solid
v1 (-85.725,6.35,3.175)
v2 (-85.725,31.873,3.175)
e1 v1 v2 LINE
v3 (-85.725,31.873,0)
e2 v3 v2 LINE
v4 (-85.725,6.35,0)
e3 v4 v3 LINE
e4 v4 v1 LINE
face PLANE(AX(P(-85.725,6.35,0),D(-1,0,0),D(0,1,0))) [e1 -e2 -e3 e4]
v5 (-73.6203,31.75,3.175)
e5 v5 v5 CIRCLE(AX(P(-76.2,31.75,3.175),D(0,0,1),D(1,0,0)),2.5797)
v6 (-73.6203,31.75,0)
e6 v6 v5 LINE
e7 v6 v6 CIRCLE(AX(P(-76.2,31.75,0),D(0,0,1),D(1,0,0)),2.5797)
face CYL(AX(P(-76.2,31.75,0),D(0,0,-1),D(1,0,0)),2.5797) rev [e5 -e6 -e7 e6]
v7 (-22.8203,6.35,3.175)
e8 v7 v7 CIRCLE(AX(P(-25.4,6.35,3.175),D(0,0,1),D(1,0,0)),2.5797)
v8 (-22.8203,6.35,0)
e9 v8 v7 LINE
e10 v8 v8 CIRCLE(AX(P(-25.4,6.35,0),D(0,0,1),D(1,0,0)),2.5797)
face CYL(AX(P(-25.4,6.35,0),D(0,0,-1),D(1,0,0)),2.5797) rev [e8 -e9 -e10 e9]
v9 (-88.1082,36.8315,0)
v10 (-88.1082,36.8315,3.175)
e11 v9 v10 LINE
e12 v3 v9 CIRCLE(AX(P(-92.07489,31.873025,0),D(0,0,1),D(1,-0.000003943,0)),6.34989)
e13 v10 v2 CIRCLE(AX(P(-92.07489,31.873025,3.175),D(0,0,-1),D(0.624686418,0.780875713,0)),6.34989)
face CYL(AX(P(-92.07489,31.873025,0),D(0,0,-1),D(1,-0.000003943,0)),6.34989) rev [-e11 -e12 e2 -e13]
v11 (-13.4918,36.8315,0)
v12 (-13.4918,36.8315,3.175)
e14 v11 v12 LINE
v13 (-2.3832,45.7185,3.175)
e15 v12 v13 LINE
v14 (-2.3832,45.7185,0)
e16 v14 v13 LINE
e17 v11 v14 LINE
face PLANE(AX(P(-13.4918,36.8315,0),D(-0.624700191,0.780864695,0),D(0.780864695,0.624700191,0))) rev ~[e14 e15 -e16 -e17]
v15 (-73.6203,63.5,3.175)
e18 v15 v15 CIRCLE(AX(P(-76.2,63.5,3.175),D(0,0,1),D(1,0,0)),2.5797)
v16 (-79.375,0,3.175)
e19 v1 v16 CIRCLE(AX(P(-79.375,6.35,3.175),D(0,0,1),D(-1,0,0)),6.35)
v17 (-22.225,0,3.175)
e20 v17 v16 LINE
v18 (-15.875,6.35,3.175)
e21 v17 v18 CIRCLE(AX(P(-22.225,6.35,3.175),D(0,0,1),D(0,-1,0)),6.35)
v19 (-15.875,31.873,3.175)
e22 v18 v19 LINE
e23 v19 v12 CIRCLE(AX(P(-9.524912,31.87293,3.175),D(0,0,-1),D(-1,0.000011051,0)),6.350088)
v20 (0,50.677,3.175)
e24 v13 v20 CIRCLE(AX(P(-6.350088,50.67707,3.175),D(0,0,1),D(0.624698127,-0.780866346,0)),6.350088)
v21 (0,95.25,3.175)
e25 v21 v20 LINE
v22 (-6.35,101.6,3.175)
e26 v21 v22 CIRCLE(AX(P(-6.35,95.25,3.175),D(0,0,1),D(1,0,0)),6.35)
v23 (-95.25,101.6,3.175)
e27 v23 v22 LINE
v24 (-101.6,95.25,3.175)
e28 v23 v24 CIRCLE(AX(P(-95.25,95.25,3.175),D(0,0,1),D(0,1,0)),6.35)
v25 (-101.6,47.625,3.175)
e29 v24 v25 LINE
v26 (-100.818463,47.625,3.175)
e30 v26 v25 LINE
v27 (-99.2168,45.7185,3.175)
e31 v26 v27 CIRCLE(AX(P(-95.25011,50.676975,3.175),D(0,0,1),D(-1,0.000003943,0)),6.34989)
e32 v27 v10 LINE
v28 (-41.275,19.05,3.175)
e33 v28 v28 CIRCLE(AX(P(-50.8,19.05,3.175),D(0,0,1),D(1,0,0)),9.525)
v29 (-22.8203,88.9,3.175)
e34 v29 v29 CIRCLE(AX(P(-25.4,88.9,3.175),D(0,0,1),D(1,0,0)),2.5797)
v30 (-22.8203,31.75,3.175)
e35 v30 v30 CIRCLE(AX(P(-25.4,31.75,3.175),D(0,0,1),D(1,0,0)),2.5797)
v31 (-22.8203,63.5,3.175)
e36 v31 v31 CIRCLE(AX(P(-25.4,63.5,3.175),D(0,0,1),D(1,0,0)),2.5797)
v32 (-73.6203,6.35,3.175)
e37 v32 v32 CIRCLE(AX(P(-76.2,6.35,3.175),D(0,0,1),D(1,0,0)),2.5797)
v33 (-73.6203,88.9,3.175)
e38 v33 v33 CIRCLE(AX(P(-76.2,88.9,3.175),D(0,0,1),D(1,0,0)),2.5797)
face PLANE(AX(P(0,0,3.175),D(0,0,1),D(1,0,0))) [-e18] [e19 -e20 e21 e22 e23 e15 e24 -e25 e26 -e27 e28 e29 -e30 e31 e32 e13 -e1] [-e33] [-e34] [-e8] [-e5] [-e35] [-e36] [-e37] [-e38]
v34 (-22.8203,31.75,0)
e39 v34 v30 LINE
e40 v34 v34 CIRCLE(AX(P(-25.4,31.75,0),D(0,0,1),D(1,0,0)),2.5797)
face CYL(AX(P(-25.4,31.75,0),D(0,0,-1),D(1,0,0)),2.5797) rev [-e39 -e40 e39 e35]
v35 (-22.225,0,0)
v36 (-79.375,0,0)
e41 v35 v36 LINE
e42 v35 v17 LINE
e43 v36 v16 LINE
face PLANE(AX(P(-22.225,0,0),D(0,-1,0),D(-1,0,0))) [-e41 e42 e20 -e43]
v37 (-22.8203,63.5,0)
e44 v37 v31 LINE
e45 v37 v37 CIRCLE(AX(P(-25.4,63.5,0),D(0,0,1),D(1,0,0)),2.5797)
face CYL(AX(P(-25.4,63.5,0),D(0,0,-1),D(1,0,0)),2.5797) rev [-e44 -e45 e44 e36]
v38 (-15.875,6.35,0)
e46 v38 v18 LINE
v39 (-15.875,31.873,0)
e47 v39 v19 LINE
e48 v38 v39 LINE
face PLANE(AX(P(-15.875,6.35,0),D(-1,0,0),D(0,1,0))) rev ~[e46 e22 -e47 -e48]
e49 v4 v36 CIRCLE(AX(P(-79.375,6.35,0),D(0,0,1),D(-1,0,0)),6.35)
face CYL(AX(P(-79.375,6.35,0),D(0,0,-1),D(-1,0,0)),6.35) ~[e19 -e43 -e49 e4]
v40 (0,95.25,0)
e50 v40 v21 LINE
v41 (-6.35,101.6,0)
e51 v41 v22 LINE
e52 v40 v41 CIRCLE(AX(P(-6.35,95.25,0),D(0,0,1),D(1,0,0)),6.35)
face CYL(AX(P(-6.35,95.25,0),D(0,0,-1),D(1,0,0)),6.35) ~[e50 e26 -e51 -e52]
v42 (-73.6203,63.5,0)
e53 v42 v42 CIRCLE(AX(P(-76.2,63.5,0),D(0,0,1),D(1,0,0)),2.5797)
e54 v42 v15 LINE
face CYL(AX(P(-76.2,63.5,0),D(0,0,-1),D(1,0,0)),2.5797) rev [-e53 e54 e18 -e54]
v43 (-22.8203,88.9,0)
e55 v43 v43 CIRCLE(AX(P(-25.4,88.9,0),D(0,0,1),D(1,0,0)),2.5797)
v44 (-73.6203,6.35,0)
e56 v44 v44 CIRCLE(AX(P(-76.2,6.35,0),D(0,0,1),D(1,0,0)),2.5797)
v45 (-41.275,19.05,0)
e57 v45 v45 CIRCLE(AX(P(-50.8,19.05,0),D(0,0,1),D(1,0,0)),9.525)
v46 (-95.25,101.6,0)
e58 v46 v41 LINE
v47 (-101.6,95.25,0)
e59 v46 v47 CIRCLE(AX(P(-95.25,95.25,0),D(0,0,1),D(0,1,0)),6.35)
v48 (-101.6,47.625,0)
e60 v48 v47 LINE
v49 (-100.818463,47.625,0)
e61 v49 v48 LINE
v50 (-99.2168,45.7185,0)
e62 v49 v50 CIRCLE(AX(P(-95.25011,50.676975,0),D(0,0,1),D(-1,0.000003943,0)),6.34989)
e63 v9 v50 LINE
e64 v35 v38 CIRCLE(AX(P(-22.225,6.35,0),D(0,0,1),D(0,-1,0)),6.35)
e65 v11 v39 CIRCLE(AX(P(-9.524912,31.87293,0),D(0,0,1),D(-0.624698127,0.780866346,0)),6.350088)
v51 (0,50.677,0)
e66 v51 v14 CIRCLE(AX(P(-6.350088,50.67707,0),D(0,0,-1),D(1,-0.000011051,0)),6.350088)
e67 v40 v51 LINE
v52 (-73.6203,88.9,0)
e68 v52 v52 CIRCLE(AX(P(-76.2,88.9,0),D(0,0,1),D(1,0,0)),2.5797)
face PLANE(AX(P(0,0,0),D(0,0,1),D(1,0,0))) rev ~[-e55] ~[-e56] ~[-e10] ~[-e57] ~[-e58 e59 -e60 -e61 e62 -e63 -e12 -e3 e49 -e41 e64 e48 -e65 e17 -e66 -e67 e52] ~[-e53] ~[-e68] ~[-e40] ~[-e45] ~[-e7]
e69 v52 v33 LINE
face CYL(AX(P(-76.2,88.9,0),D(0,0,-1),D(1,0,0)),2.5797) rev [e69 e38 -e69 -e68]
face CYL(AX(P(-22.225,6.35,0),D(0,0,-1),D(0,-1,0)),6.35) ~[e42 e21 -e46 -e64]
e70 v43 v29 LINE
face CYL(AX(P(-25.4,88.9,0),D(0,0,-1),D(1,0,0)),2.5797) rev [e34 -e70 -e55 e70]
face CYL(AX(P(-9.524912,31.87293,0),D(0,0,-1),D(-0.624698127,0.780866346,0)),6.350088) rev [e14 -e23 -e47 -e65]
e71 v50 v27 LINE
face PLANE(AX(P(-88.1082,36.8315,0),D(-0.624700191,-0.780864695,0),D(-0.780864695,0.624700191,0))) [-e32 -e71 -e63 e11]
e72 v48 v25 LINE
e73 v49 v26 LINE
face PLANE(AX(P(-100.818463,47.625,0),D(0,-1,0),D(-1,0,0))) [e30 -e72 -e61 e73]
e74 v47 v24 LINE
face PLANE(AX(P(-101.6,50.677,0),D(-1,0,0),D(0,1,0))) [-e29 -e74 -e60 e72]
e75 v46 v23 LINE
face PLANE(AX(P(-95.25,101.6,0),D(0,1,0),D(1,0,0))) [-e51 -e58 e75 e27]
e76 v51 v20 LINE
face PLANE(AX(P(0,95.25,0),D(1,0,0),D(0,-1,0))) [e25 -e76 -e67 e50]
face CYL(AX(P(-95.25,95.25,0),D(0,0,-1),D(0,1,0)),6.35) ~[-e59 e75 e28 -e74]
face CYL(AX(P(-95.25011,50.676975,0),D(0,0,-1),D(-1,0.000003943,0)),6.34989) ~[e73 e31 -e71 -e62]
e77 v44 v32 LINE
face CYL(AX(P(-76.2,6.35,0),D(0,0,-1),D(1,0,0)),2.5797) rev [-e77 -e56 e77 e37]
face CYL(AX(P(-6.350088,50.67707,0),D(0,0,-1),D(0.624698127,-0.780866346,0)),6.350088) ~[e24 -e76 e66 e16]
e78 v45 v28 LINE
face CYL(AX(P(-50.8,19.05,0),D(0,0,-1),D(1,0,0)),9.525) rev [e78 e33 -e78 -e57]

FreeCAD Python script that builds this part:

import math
import FreeCAD as App
import Part
import Sketcher
from FreeCAD import Vector
Q = App.Units.Quantity

doc = App.newDocument("Part")
body = doc.addObject("PartDesign::Body", "Body")

# Sketch on XY plane
sketch1 = doc.addObject("Sketcher::SketchObject", "Sketch")
body.addObject(sketch1)
sketch1.AttachmentSupport = (doc.XY_Plane, [""])
sketch1.MapMode = "FlatFace"
sketch1.addGeometry([
    Part.LineSegment(Vector(-79.4, 0, 0), Vector(-22.2, 0, 0)),  # 0
    Part.ArcOfCircle(Part.Circle(Vector(-22.2, 6.3, 0), Vector(0, 0, 1), 6.3), math.radians(-90), math.radians(0)),  # 1
    Part.LineSegment(Vector(-15.9, 6.3, 0), Vector(-15.9, 31.9, 0)),  # 2
    Part.ArcOfCircle(Part.Circle(Vector(-9.5, 31.9, 0), Vector(0, 0, 1), 6.3), math.radians(129), math.radians(180)),  # 3
    Part.LineSegment(Vector(-13.5, 36.8, 0), Vector(-2.4, 45.7, 0)),  # 4
    Part.ArcOfCircle(Part.Circle(Vector(-6.3, 50.7, 0), Vector(0, 0, 1), 6.3), math.radians(-51), math.radians(0)),  # 5
    Part.LineSegment(Vector(0, 50.7, 0), Vector(0, 95.2, 0)),  # 6
    Part.ArcOfCircle(Part.Circle(Vector(-6.3, 95.2, 0), Vector(0, 0, 1), 6.3), math.radians(0), math.radians(90)),  # 7
    Part.LineSegment(Vector(-6.3, 101.6, 0), Vector(-95.2, 101.6, 0)),  # 8
    Part.ArcOfCircle(Part.Circle(Vector(-95.2, 95.2, 0), Vector(0, 0, 1), 6.3), math.radians(90), math.radians(180)),  # 9
    Part.LineSegment(Vector(-101.6, 95.2, 0), Vector(-101.6, 47.6, 0)),  # 10
    Part.LineSegment(Vector(-101.6, 47.6, 0), Vector(-100.8, 47.6, 0)),  # 11
    Part.ArcOfCircle(Part.Circle(Vector(-95.2, 50.7, 0), Vector(0, 0, 1), 6.3), math.radians(-151), math.radians(-129)),  # 12
    Part.LineSegment(Vector(-99.2, 45.7, 0), Vector(-88.1, 36.8, 0)),  # 13
    Part.ArcOfCircle(Part.Circle(Vector(-92.1, 31.9, 0), Vector(0, 0, 1), 6.4), math.radians(0), math.radians(51)),  # 14
    Part.LineSegment(Vector(-85.7, 31.9, 0), Vector(-85.7, 6.3, 0)),  # 15
    Part.ArcOfCircle(Part.Circle(Vector(-79.4, 6.3, 0), Vector(0, 0, 1), 6.3), math.radians(180), math.radians(270)),  # 16
    Part.Circle(Vector(-76.2, 6.3, 0), Vector(0, 0, 1), 2.6),  # 17
    Part.Circle(Vector(-50.8, 19.1, 0), Vector(0, 0, 1), 9.5),  # 18
    Part.Circle(Vector(-76.2, 31.8, 0), Vector(0, 0, 1), 2.6),  # 19
    Part.Circle(Vector(-25.4, 6.3, 0), Vector(0, 0, 1), 2.6),  # 20
    Part.Circle(Vector(-25.4, 31.8, 0), Vector(0, 0, 1), 2.6),  # 21
    Part.Circle(Vector(-76.2, 63.5, 0), Vector(0, 0, 1), 2.6),  # 22
    Part.Circle(Vector(-76.2, 88.9, 0), Vector(0, 0, 1), 2.6),  # 23
    Part.Circle(Vector(-25.4, 63.5, 0), Vector(0, 0, 1), 2.6),  # 24
    Part.Circle(Vector(-25.4, 88.9, 0), Vector(0, 0, 1), 2.6),  # 25
], False)
sketch1.addConstraint([
    Sketcher.Constraint("Tangent", 0, 2, 1, 1),
    Sketcher.Constraint("Tangent", 1, 2, 2, 1),
    Sketcher.Constraint("Tangent", 2, 2, 3, 2),
    Sketcher.Constraint("Tangent", 3, 1, 4, 1),
    Sketcher.Constraint("Tangent", 4, 2, 5, 1),
    Sketcher.Constraint("Tangent", 5, 2, 6, 1),
    Sketcher.Constraint("Tangent", 6, 2, 7, 1),
    Sketcher.Constraint("Tangent", 7, 2, 8, 1),
    Sketcher.Constraint("Tangent", 8, 2, 9, 1),
    Sketcher.Constraint("Tangent", 9, 2, 10, 1),
    Sketcher.Constraint("Coincident", 10, 2, 11, 1),
    Sketcher.Constraint("Coincident", 11, 2, 12, 1),
    Sketcher.Constraint("Tangent", 12, 2, 13, 1),
    Sketcher.Constraint("Tangent", 13, 2, 14, 2),
    Sketcher.Constraint("Tangent", 14, 1, 15, 1),
    Sketcher.Constraint("Tangent", 15, 2, 16, 1),
    Sketcher.Constraint("Tangent", 16, 2, 0, 1),
    Sketcher.Constraint("Horizontal", 0),
    Sketcher.Constraint("Vertical", 2),
    Sketcher.Constraint("Vertical", 6),
    Sketcher.Constraint("Horizontal", 8),
    Sketcher.Constraint("Vertical", 10),
    Sketcher.Constraint("Horizontal", 11),
    Sketcher.Constraint("Vertical", 15),
    Sketcher.Constraint("Equal", 1, 3),
    Sketcher.Constraint("Equal", 3, 5),
    Sketcher.Constraint("Equal", 5, 7),
    Sketcher.Constraint("Equal", 7, 9),
    Sketcher.Constraint("Equal", 9, 12),
    Sketcher.Constraint("Equal", 12, 14),
    Sketcher.Constraint("Equal", 14, 16),
    Sketcher.Constraint("Equal", 17, 19),
    Sketcher.Constraint("Equal", 19, 20),
    Sketcher.Constraint("Equal", 20, 21),
    Sketcher.Constraint("Equal", 21, 22),
    Sketcher.Constraint("Equal", 22, 23),
    Sketcher.Constraint("Equal", 23, 24),
    Sketcher.Constraint("Equal", 24, 25),
    Sketcher.Constraint("PointOnObject", 0, 2, -1),
    Sketcher.Constraint("PointOnObject", 5, 2, -2),
    Sketcher.Constraint("Horizontal", 5, 3, 12, 3),
    Sketcher.Constraint("Horizontal", 3, 3, 14, 3),
    Sketcher.Constraint("Horizontal", 16, 3, 17, 3),
    Sketcher.Constraint("Horizontal", 17, 3, 20, 3),
    Sketcher.Constraint("Horizontal", 19, 3, 21, 3),
    Sketcher.Constraint("Horizontal", 22, 3, 24, 3),
    Sketcher.Constraint("Horizontal", 23, 3, 25, 3),
    Sketcher.Constraint("Horizontal", 4, 2, 12, 2),
    Sketcher.Constraint("Vertical", 9, 3, 12, 3),
    Sketcher.Constraint("Vertical", 17, 3, 19, 3),
    Sketcher.Constraint("Vertical", 20, 3, 21, 3),
    Sketcher.Constraint("Vertical", 19, 3, 22, 3),
    Sketcher.Constraint("Vertical", 22, 3, 23, 3),
    Sketcher.Constraint("Vertical", 21, 3, 24, 3),
    Sketcher.Constraint("Vertical", 24, 3, 25, 3),
    Sketcher.Constraint("Diameter", 18, Q("0.75 in")),
    Sketcher.Constraint("Radius", 1, Q("0.25 in")),
    Sketcher.Constraint("Diameter", 17, Q("0.203126 in")),
    Sketcher.Constraint("DistanceX", 18, 3, -1, 1, Q("2 in")),
    Sketcher.Constraint("DistanceX", 20, 3, -1, 1, Q("1 in")),
    Sketcher.Constraint("DistanceY", -1, 1, 7, 2, Q("4 in")),
    Sketcher.Constraint("DistanceX", 9, 2, -1, 1, Q("4 in")),
    Sketcher.Constraint("DistanceX", 17, 3, 18, 3, Q("1 in")),
    Sketcher.Constraint("DistanceY", 17, 3, 19, 3, Q("1 in")),
    Sketcher.Constraint("DistanceY", 22, 3, 23, 3, Q("1 in")),
    Sketcher.Constraint("DistanceY", 17, 3, 18, 3, Q("0.5 in")),
    Sketcher.Constraint("DistanceY", 25, 3, 7, 2, Q("0.5 in")),
    Sketcher.Constraint("DistanceX", 1, 2, -1, 1, Q("0.625 in")),
    Sketcher.Constraint("DistanceY", 19, 3, 10, 2, Q("0.625 in")),
    Sketcher.Constraint("Angle", 4, Q("38.6602 deg")),
    Sketcher.Constraint("DistanceX", 11, 1, 11, 2, 0.7815),
])
pad1 = doc.addObject("PartDesign::Pad", "Pad")
body.addObject(pad1)
pad1.Profile = sketch1
pad1.Length = Q("0.125 in")

doc.recompute()
